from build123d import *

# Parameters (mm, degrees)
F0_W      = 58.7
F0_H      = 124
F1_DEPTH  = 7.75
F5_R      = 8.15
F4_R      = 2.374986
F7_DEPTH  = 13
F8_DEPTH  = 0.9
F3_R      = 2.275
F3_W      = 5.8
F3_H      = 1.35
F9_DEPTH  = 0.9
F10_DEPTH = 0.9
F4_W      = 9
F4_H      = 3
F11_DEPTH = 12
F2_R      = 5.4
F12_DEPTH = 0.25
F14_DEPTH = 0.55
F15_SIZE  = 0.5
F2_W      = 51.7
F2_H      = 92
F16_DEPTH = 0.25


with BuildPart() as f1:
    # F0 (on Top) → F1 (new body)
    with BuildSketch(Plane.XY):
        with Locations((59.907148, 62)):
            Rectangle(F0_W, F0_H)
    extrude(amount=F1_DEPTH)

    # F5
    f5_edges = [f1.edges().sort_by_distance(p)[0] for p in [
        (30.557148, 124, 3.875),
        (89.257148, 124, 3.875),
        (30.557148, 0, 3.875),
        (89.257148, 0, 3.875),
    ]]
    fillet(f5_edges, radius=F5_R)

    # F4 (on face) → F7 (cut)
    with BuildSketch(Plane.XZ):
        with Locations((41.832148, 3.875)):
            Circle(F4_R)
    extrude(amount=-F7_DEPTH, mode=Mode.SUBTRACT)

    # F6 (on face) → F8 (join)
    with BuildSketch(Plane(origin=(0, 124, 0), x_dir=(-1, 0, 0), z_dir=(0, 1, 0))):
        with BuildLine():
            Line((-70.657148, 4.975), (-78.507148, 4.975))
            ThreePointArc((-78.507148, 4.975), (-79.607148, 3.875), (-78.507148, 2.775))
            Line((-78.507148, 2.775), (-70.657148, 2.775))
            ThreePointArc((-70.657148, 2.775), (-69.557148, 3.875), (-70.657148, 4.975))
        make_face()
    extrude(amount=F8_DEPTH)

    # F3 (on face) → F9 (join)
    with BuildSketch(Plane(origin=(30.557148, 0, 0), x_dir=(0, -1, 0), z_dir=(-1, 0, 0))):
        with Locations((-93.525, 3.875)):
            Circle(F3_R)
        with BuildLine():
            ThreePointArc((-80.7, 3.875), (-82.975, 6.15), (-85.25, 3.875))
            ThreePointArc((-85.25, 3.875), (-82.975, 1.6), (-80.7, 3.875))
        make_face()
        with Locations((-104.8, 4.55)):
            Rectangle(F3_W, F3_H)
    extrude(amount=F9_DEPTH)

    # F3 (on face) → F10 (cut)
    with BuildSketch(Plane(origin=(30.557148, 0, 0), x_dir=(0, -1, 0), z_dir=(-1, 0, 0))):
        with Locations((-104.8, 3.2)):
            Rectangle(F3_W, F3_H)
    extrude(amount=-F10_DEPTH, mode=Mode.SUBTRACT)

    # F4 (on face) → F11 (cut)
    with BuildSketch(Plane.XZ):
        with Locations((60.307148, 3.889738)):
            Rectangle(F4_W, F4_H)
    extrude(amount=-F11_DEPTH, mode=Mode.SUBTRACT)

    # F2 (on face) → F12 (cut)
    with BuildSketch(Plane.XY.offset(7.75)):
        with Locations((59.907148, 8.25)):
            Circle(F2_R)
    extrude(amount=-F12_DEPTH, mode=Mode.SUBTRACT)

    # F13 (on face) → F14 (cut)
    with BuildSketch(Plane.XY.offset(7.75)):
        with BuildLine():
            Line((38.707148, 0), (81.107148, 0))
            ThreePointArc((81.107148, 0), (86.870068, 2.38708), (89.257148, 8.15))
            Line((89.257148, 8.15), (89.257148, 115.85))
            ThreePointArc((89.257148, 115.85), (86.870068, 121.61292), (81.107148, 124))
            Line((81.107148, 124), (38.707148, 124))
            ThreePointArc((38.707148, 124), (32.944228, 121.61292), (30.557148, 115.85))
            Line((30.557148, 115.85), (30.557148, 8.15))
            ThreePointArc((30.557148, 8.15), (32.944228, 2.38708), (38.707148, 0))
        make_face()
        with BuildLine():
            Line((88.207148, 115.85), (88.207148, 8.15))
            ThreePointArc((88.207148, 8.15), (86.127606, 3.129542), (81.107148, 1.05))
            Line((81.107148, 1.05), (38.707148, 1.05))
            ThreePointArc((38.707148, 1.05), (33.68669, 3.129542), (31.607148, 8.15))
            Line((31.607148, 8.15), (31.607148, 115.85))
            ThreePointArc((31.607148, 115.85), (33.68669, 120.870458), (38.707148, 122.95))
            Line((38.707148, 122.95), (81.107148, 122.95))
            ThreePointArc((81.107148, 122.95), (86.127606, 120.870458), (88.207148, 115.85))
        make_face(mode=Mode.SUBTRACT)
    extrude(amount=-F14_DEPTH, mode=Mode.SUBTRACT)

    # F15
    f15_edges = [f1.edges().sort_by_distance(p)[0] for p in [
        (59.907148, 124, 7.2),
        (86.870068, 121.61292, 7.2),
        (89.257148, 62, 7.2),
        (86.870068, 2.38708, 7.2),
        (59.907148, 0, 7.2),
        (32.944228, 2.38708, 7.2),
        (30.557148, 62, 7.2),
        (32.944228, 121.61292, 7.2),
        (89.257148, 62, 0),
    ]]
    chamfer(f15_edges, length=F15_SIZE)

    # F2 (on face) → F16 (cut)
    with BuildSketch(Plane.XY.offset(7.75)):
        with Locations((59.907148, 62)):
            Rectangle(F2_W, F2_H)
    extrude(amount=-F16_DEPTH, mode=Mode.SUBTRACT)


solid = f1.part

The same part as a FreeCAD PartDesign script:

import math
import FreeCAD as App
import Part
import Sketcher

V = App.Vector
Q = App.Units.Quantity


def edges_at(feature, points):
    """Names of the edges that pass closest to the given points."""
    edges = feature.Shape.Edges
    near = lambda p: min(range(len(edges)), key=lambda i: edges[i].distToShape(Part.Vertex(*p))[0])
    return sorted({f"Edge{near(p) + 1}" for p in points})

doc = App.newDocument("Part")
body = doc.addObject("PartDesign::Body", "Body")

# Sketch on XY plane
sketch1 = doc.addObject("Sketcher::SketchObject", "Sketch")
body.addObject(sketch1)
sketch1.AttachmentSupport = (doc.XY_Plane, [""])
sketch1.MapMode = "FlatFace"
sketch1.addGeometry([
    Part.LineSegment(V(31, 124, 0), V(31, 0, 0)),
    Part.LineSegment(V(31, 0, 0), V(89, 0, 0)),
    Part.LineSegment(V(89, 0, 0), V(89, 124, 0)),
    Part.LineSegment(V(89, 124, 0), V(31, 124, 0)),
], False)
sketch1.addConstraint([
    Sketcher.Constraint("Coincident", 0, 2, 1, 1),
    Sketcher.Constraint("Coincident", 1, 2, 2, 1),
    Sketcher.Constraint("Coincident", 2, 2, 3, 1),
    Sketcher.Constraint("Coincident", 3, 2, 0, 1),
    Sketcher.Constraint("Vertical", 0),
    Sketcher.Constraint("Horizontal", 1),
    Sketcher.Constraint("Vertical", 2),
    Sketcher.Constraint("Horizontal", 3),
    Sketcher.Constraint("PointOnObject", 0, 2, -1),
    Sketcher.Constraint("DistanceY", 0, 2, 0, 1, Q("124 mm")),
    Sketcher.Constraint("DistanceX", 1, 1, 1, 2, Q("58.7 mm")),
    Sketcher.Constraint("DistanceX", -1, 1, 0, 2, Q("30.557148 mm")),
])
pad1 = doc.addObject("PartDesign::Pad", "Pad")
body.addObject(pad1)
pad1.Profile = sketch1
pad1.Length = 7.75
doc.recompute()

fillet = doc.addObject("PartDesign::Fillet", "Fillet")
body.addObject(fillet)
fillet.Base = (pad1, edges_at(pad1, [
    (30.557, 124, 3.875),
    (89.257, 124, 3.875),
    (30.557, 0, 3.875),
    (89.257, 0, 3.875),
]))
fillet.Radius = 8.15

# Sketch on XZ plane
sketch2 = doc.addObject("Sketcher::SketchObject", "Sketch001")
body.addObject(sketch2)
sketch2.AttachmentSupport = (doc.XZ_Plane, [""])
sketch2.MapMode = "FlatFace"
sketch2.addGeometry(Part.Circle(V(41.8, 3.9, 0), V(0, 0, 1), 2.4), False)
sketch2.addConstraint([
    Sketcher.Constraint("Diameter", 0, Q("4.749972 mm")),
    Sketcher.Constraint("DistanceY", -1, 1, 0, 3, Q("3.875 mm")),
    Sketcher.Constraint("DistanceX", -1, 1, 0, 3, Q("41.832148 mm")),
])
pocket1 = doc.addObject("PartDesign::Pocket", "Pocket")
body.addObject(pocket1)
pocket1.Profile = sketch2
pocket1.Length = 13

# Sketch on XZ plane
sketch3 = doc.addObject("Sketcher::SketchObject", "Sketch002")
body.addObject(sketch3)
sketch3.AttachmentSupport = (doc.XZ_Plane, [""])
sketch3.MapMode = "FlatFace"
sketch3.AttachmentOffset = App.Placement(V(0, 0, -124), App.Rotation())
sketch3.addGeometry([
    Part.LineSegment(V(70.7, 5, 0), V(78.5, 5, 0)),
    Part.ArcOfCircle(Part.Circle(V(78.5, 3.9, 0), V(0, 0, 1), 1.1), math.radians(-90), math.radians(90)),
    Part.LineSegment(V(78.5, 2.8, 0), V(70.7, 2.8, 0)),
    Part.ArcOfCircle(Part.Circle(V(70.7, 3.9, 0), V(0, 0, 1), 1.1), math.radians(90), math.radians(270)),
], False)
sketch3.addConstraint([
    Sketcher.Constraint("Tangent", 0, 2, 1, 2),
    Sketcher.Constraint("Tangent", 1, 1, 2, 1),
    Sketcher.Constraint("Tangent", 2, 2, 3, 2),
    Sketcher.Constraint("Tangent", 3, 1, 0, 1),
    Sketcher.Constraint("Horizontal", 0),
    Sketcher.Constraint("Horizontal", 2),
    Sketcher.Constraint("Radius", 1, Q("1.1 mm")),
    Sketcher.Constraint("DistanceX", 0, 1, 0, 2, Q("7.85 mm")),
    Sketcher.Constraint("DistanceY", -1, 1, 1, 3, Q("3.875 mm")),
    Sketcher.Constraint("DistanceX", -1, 1, 1, 3, Q("78.507148 mm")),
])
pad2 = doc.addObject("PartDesign::Pad", "Pad001")
body.addObject(pad2)
pad2.Profile = sketch3
pad2.Length = 0.9
pad2.Reversed = True

# Sketch on YZ plane
sketch4 = doc.addObject("Sketcher::SketchObject", "Sketch003")
body.addObject(sketch4)
sketch4.AttachmentSupport = (doc.YZ_Plane, [""])
sketch4.MapMode = "FlatFace"
sketch4.AttachmentOffset = App.Placement(V(0, 0, 30.557148), App.Rotation())
sketch4.addGeometry([
    Part.Circle(V(93.5, 3.9, 0), V(0, 0, 1), 2.3),  # 0
    Part.Circle(V(83, 3.9, 0), V(0, 0, 1), 2.3),  # 1
    Part.LineSegment(V(107.7, 5.2, 0), V(107.7, 3.9, 0)),  # 2
    Part.LineSegment(V(107.7, 3.9, 0), V(101.9, 3.9, 0)),  # 3
    Part.LineSegment(V(101.9, 3.9, 0), V(101.9, 5.2, 0)),  # 4
    Part.LineSegment(V(101.9, 5.2, 0), V(107.7, 5.2, 0)),  # 5
], False)
sketch4.addConstraint([
    Sketcher.Constraint("Coincident", 2, 2, 3, 1),
    Sketcher.Constraint("Coincident", 3, 2, 4, 1),
    Sketcher.Constraint("Coincident", 4, 2, 5, 1),
    Sketcher.Constraint("Coincident", 5, 2, 2, 1),
    Sketcher.Constraint("Vertical", 2),
    Sketcher.Constraint("Horizontal", 3),
    Sketcher.Constraint("Vertical", 4),
    Sketcher.Constraint("Horizontal", 5),
    Sketcher.Constraint("Equal", 0, 1),
    Sketcher.Constraint("Horizontal", 0, 3, 1, 3),
    Sketcher.Constraint("Horizontal", 1, 3, 2, 2),
    Sketcher.Constraint("Diameter", 0, Q("4.55 mm")),
    Sketcher.Constraint("DistanceX", 3, 2, 3, 1, Q("5.8 mm")),
    Sketcher.Constraint("DistanceY", 2, 2, 2, 1, Q("1.35 mm")),
    Sketcher.Constraint("DistanceX", -1, 1, 2, 2, Q("107.7 mm")),
    Sketcher.Constraint("DistanceX", 1, 3, 0, 3, Q("10.55 mm")),
    Sketcher.Constraint("DistanceX", -1, 1, 0, 3, Q("93.525 mm")),
    Sketcher.Constraint("DistanceY", -1, 1, 0, 3, Q("3.875 mm")),
])
pad3 = doc.addObject("PartDesign::Pad", "Pad002")
body.addObject(pad3)
pad3.Profile = sketch4
pad3.Length = 0.9
pad3.Reversed = True

# Sketch on YZ plane
sketch5 = doc.addObject("Sketcher::SketchObject", "Sketch004")
body.addObject(sketch5)
sketch5.AttachmentSupport = (doc.YZ_Plane, [""])
sketch5.MapMode = "FlatFace"
sketch5.AttachmentOffset = App.Placement(V(0, 0, 30.557148), App.Rotation())
sketch5.addGeometry([
    Part.LineSegment(V(107.7, 3.9, 0), V(107.7, 2.5, 0)),
    Part.LineSegment(V(107.7, 2.5, 0), V(101.9, 2.5, 0)),
    Part.LineSegment(V(101.9, 2.5, 0), V(101.9, 3.9, 0)),
    Part.LineSegment(V(101.9, 3.9, 0), V(107.7, 3.9, 0)),
], False)
sketch5.addConstraint([
    Sketcher.Constraint("Coincident", 0, 2, 1, 1),
    Sketcher.Constraint("Coincident", 1, 2, 2, 1),
    Sketcher.Constraint("Coincident", 2, 2, 3, 1),
    Sketcher.Constraint("Coincident", 3, 2, 0, 1),
    Sketcher.Constraint("Vertical", 0),
    Sketcher.Constraint("Horizontal", 1),
    Sketcher.Constraint("Vertical", 2),
    Sketcher.Constraint("Horizontal", 3),
    Sketcher.Constraint("DistanceX", 1, 2, 1, 1, Q("5.8 mm")),
    Sketcher.Constraint("DistanceY", 0, 2, 0, 1, Q("1.35 mm")),
    Sketcher.Constraint("DistanceX", -1, 1, 0, 2, Q("107.7 mm")),
    Sketcher.Constraint("DistanceY", -1, 1, 0, 2, Q("2.525 mm")),
])
pocket2 = doc.addObject("PartDesign::Pocket", "Pocket001")
body.addObject(pocket2)
pocket2.Profile = sketch5
pocket2.Length = 0.9
pocket2.Reversed = True

# Sketch on XZ plane
sketch6 = doc.addObject("Sketcher::SketchObject", "Sketch005")
body.addObject(sketch6)
sketch6.AttachmentSupport = (doc.XZ_Plane, [""])
sketch6.MapMode = "FlatFace"
sketch6.addGeometry([
    Part.LineSegment(V(55.8, 5.4, 0), V(55.8, 2.4, 0)),
    Part.LineSegment(V(55.8, 2.4, 0), V(64.8, 2.4, 0)),
    Part.LineSegment(V(64.8, 2.4, 0), V(64.8, 5.4, 0)),
    Part.LineSegment(V(64.8, 5.4, 0), V(55.8, 5.4, 0)),
], False)
sketch6.addConstraint([
    Sketcher.Constraint("Coincident", 0, 2, 1, 1),
    Sketcher.Constraint("Coincident", 1, 2, 2, 1),
    Sketcher.Constraint("Coincident", 2, 2, 3, 1),
    Sketcher.Constraint("Coincident", 3, 2, 0, 1),
    Sketcher.Constraint("Vertical", 0),
    Sketcher.Constraint("Horizontal", 1),
    Sketcher.Constraint("Vertical", 2),
    Sketcher.Constraint("Horizontal", 3),
    Sketcher.Constraint("DistanceX", 1, 1, 1, 2, Q("9 mm")),
    Sketcher.Constraint("DistanceY", 0, 2, 0, 1, Q("3 mm")),
    Sketcher.Constraint("DistanceX", -1, 1, 1, 2, Q("64.807148 mm")),
    Sketcher.Constraint("DistanceY", -1, 1, 2, 2, Q("5.389738 mm")),
])
pocket3 = doc.addObject("PartDesign::Pocket", "Pocket002")
body.addObject(pocket3)
pocket3.Profile = sketch6
pocket3.Length = 12

# Sketch on XY plane
sketch7 = doc.addObject("Sketcher::SketchObject", "Sketch006")
body.addObject(sketch7)
sketch7.AttachmentSupport = (doc.XY_Plane, [""])
sketch7.MapMode = "FlatFace"
sketch7.AttachmentOffset = App.Placement(V(0, 0, 7.75), App.Rotation())
sketch7.addGeometry(Part.Circle(V(60, 8, 0), V(0, 0, 1), 5), False)
sketch7.addConstraint([
    Sketcher.Constraint("Diameter", 0, Q("10.8 mm")),
    Sketcher.Constraint("DistanceY", -1, 1, 0, 3, Q("8.25 mm")),
    Sketcher.Constraint("DistanceX", -1, 1, 0, 3, Q("59.907148 mm")),
])
pocket4 = doc.addObject("PartDesign::Pocket", "Pocket003")
body.addObject(pocket4)
pocket4.Profile = sketch7
pocket4.Length = 0.25

# Sketch on XY plane
sketch8 = doc.addObject("Sketcher::SketchObject", "Sketch007")
body.addObject(sketch8)
sketch8.AttachmentSupport = (doc.XY_Plane, [""])
sketch8.MapMode = "FlatFace"
sketch8.AttachmentOffset = App.Placement(V(0, 0, 7.75), App.Rotation())
sketch8.addGeometry([
    Part.LineSegment(V(39, 0, 0), V(81, 0, 0)),  # 0
    Part.ArcOfCircle(Part.Circle(V(81, 8, 0), V(0, 0, 1), 8), math.radians(-90), math.radians(0)),  # 1
    Part.LineSegment(V(89, 8, 0), V(89, 116, 0)),  # 2
    Part.ArcOfCircle(Part.Circle(V(81, 116, 0), V(0, 0, 1), 8), math.radians(0), math.radians(90)),  # 3
    Part.LineSegment(V(81, 124, 0), V(39, 124, 0)),  # 4
    Part.ArcOfCircle(Part.Circle(V(39, 116, 0), V(0, 0, 1), 8), math.radians(90), math.radians(180)),  # 5
    Part.LineSegment(V(31, 116, 0), V(31, 8, 0)),  # 6
    Part.ArcOfCircle(Part.Circle(V(39, 8, 0), V(0, 0, 1), 8), math.radians(-180), math.radians(-90)),  # 7
    Part.ArcOfCircle(Part.Circle(V(81, 116, 0), V(0, 0, 1), 7), math.radians(0), math.radians(90)),  # 8
    Part.LineSegment(V(88, 116, 0), V(88, 8, 0)),  # 9
    Part.ArcOfCircle(Part.Circle(V(81, 8, 0), V(0, 0, 1), 7), math.radians(-90), math.radians(0)),  # 10
    Part.LineSegment(V(81, 1, 0), V(39, 1, 0)),  # 11
    Part.ArcOfCircle(Part.Circle(V(39, 8, 0), V(0, 0, 1), 7), math.radians(-180), math.radians(-90)),  # 12
    Part.LineSegment(V(32, 8, 0), V(32, 116, 0)),  # 13
    Part.ArcOfCircle(Part.Circle(V(39, 116, 0), V(0, 0, 1), 7), math.radians(90), math.radians(180)),  # 14
    Part.LineSegment(V(39, 123, 0), V(81, 123, 0)),  # 15
], False)
sketch8.addConstraint([
    Sketcher.Constraint("Tangent", 0, 2, 1, 1),
    Sketcher.Constraint("Tangent", 1, 2, 2, 1),
    Sketcher.Constraint("Tangent", 2, 2, 3, 1),
    Sketcher.Constraint("Tangent", 3, 2, 4, 1),
    Sketcher.Constraint("Tangent", 4, 2, 5, 1),
    Sketcher.Constraint("Tangent", 5, 2, 6, 1),
    Sketcher.Constraint("Tangent", 6, 2, 7, 1),
    Sketcher.Constraint("Tangent", 7, 2, 0, 1),
    Sketcher.Constraint("Tangent", 8, 1, 9, 1),
    Sketcher.Constraint("Tangent", 9, 2, 10, 2),
    Sketcher.Constraint("Tangent", 10, 1, 11, 1),
    Sketcher.Constraint("Tangent", 11, 2, 12, 2),
    Sketcher.Constraint("Tangent", 12, 1, 13, 1),
    Sketcher.Constraint("Tangent", 13, 2, 14, 2),
    Sketcher.Constraint("Tangent", 14, 1, 15, 1),
    Sketcher.Constraint("Tangent", 15, 2, 8, 2),
    Sketcher.Constraint("Horizontal", 0),
    Sketcher.Constraint("Vertical", 2),
    Sketcher.Constraint("Horizontal", 4),
    Sketcher.Constraint("Vertical", 6),
    Sketcher.Constraint("Vertical", 9),
    Sketcher.Constraint("Horizontal", 11),
    Sketcher.Constraint("Vertical", 13),
    Sketcher.Constraint("Horizontal", 15),
    Sketcher.Constraint("Coincident", 8, 3, 3, 3),
    Sketcher.Constraint("Coincident", 10, 3, 1, 3),
    Sketcher.Constraint("Coincident", 12, 3, 7, 3),
    Sketcher.Constraint("Equal", 1, 3),
    Sketcher.Constraint("Equal", 3, 5),
    Sketcher.Constraint("Equal", 5, 7),
    Sketcher.Constraint("Equal", 12, 14),
    Sketcher.Constraint("PointOnObject", 0, 2, -1),
    Sketcher.Constraint("Radius", 8, Q("7.100001 mm")),
    Sketcher.Constraint("Radius", 1, Q("8.150001 mm")),
    Sketcher.Constraint("DistanceX", 0, 1, 0, 2, Q("42.4 mm")),
    Sketcher.Constraint("DistanceY", 2, 1, 2, 2, Q("107.7 mm")),
    Sketcher.Constraint("DistanceX", -1, 1, 5, 3, Q("38.707149 mm")),
])
pocket5 = doc.addObject("PartDesign::Pocket", "Pocket004")
body.addObject(pocket5)
pocket5.Profile = sketch8
pocket5.Length = 0.55
doc.recompute()

chamfer = doc.addObject("PartDesign::Chamfer", "Chamfer")
body.addObject(chamfer)
chamfer.Base = (pocket5, edges_at(pocket5, [
    (59.907, 124, 7.2),
    (86.87, 121.613, 7.2),
    (89.257, 62, 7.2),
    (86.87, 2.387, 7.2),
    (59.907, 0, 7.2),
    (32.944, 2.387, 7.2),
    (30.557, 62, 7.2),
    (32.944, 121.613, 7.2),
    (89.257, 62, 0),
]))
chamfer.Size = 0.5

# Sketch on XY plane
sketch9 = doc.addObject("Sketcher::SketchObject", "Sketch008")
body.addObject(sketch9)
sketch9.AttachmentSupport = (doc.XY_Plane, [""])
sketch9.MapMode = "FlatFace"
sketch9.AttachmentOffset = App.Placement(V(0, 0, 7.75), App.Rotation())
sketch9.addGeometry([
    Part.LineSegment(V(34, 108, 0), V(34, 16, 0)),
    Part.LineSegment(V(34, 16, 0), V(86, 16, 0)),
    Part.LineSegment(V(86, 16, 0), V(86, 108, 0)),
    Part.LineSegment(V(86, 108, 0), V(34, 108, 0)),
], False)
sketch9.addConstraint([
    Sketcher.Constraint("Coincident", 0, 2, 1, 1),
    Sketcher.Constraint("Coincident", 1, 2, 2, 1),
    Sketcher.Constraint("Coincident", 2, 2, 3, 1),
    Sketcher.Constraint("Coincident", 3, 2, 0, 1),
    Sketcher.Constraint("Vertical", 0),
    Sketcher.Constraint("Horizontal", 1),
    Sketcher.Constraint("Vertical", 2),
    Sketcher.Constraint("Horizontal", 3),
    Sketcher.Constraint("DistanceY", 0, 2, 0, 1, Q("92 mm")),
    Sketcher.Constraint("DistanceX", 1, 1, 1, 2, Q("51.7 mm")),
    Sketcher.Constraint("DistanceY", -1, 1, 0, 2, Q("16 mm")),
    Sketcher.Constraint("DistanceX", -1, 1, 1, 2, Q("85.757148 mm")),
])
pocket6 = doc.addObject("PartDesign::Pocket", "Pocket005")
body.addObject(pocket6)
pocket6.Profile = sketch9
pocket6.Length = 0.25

doc.recompute()
